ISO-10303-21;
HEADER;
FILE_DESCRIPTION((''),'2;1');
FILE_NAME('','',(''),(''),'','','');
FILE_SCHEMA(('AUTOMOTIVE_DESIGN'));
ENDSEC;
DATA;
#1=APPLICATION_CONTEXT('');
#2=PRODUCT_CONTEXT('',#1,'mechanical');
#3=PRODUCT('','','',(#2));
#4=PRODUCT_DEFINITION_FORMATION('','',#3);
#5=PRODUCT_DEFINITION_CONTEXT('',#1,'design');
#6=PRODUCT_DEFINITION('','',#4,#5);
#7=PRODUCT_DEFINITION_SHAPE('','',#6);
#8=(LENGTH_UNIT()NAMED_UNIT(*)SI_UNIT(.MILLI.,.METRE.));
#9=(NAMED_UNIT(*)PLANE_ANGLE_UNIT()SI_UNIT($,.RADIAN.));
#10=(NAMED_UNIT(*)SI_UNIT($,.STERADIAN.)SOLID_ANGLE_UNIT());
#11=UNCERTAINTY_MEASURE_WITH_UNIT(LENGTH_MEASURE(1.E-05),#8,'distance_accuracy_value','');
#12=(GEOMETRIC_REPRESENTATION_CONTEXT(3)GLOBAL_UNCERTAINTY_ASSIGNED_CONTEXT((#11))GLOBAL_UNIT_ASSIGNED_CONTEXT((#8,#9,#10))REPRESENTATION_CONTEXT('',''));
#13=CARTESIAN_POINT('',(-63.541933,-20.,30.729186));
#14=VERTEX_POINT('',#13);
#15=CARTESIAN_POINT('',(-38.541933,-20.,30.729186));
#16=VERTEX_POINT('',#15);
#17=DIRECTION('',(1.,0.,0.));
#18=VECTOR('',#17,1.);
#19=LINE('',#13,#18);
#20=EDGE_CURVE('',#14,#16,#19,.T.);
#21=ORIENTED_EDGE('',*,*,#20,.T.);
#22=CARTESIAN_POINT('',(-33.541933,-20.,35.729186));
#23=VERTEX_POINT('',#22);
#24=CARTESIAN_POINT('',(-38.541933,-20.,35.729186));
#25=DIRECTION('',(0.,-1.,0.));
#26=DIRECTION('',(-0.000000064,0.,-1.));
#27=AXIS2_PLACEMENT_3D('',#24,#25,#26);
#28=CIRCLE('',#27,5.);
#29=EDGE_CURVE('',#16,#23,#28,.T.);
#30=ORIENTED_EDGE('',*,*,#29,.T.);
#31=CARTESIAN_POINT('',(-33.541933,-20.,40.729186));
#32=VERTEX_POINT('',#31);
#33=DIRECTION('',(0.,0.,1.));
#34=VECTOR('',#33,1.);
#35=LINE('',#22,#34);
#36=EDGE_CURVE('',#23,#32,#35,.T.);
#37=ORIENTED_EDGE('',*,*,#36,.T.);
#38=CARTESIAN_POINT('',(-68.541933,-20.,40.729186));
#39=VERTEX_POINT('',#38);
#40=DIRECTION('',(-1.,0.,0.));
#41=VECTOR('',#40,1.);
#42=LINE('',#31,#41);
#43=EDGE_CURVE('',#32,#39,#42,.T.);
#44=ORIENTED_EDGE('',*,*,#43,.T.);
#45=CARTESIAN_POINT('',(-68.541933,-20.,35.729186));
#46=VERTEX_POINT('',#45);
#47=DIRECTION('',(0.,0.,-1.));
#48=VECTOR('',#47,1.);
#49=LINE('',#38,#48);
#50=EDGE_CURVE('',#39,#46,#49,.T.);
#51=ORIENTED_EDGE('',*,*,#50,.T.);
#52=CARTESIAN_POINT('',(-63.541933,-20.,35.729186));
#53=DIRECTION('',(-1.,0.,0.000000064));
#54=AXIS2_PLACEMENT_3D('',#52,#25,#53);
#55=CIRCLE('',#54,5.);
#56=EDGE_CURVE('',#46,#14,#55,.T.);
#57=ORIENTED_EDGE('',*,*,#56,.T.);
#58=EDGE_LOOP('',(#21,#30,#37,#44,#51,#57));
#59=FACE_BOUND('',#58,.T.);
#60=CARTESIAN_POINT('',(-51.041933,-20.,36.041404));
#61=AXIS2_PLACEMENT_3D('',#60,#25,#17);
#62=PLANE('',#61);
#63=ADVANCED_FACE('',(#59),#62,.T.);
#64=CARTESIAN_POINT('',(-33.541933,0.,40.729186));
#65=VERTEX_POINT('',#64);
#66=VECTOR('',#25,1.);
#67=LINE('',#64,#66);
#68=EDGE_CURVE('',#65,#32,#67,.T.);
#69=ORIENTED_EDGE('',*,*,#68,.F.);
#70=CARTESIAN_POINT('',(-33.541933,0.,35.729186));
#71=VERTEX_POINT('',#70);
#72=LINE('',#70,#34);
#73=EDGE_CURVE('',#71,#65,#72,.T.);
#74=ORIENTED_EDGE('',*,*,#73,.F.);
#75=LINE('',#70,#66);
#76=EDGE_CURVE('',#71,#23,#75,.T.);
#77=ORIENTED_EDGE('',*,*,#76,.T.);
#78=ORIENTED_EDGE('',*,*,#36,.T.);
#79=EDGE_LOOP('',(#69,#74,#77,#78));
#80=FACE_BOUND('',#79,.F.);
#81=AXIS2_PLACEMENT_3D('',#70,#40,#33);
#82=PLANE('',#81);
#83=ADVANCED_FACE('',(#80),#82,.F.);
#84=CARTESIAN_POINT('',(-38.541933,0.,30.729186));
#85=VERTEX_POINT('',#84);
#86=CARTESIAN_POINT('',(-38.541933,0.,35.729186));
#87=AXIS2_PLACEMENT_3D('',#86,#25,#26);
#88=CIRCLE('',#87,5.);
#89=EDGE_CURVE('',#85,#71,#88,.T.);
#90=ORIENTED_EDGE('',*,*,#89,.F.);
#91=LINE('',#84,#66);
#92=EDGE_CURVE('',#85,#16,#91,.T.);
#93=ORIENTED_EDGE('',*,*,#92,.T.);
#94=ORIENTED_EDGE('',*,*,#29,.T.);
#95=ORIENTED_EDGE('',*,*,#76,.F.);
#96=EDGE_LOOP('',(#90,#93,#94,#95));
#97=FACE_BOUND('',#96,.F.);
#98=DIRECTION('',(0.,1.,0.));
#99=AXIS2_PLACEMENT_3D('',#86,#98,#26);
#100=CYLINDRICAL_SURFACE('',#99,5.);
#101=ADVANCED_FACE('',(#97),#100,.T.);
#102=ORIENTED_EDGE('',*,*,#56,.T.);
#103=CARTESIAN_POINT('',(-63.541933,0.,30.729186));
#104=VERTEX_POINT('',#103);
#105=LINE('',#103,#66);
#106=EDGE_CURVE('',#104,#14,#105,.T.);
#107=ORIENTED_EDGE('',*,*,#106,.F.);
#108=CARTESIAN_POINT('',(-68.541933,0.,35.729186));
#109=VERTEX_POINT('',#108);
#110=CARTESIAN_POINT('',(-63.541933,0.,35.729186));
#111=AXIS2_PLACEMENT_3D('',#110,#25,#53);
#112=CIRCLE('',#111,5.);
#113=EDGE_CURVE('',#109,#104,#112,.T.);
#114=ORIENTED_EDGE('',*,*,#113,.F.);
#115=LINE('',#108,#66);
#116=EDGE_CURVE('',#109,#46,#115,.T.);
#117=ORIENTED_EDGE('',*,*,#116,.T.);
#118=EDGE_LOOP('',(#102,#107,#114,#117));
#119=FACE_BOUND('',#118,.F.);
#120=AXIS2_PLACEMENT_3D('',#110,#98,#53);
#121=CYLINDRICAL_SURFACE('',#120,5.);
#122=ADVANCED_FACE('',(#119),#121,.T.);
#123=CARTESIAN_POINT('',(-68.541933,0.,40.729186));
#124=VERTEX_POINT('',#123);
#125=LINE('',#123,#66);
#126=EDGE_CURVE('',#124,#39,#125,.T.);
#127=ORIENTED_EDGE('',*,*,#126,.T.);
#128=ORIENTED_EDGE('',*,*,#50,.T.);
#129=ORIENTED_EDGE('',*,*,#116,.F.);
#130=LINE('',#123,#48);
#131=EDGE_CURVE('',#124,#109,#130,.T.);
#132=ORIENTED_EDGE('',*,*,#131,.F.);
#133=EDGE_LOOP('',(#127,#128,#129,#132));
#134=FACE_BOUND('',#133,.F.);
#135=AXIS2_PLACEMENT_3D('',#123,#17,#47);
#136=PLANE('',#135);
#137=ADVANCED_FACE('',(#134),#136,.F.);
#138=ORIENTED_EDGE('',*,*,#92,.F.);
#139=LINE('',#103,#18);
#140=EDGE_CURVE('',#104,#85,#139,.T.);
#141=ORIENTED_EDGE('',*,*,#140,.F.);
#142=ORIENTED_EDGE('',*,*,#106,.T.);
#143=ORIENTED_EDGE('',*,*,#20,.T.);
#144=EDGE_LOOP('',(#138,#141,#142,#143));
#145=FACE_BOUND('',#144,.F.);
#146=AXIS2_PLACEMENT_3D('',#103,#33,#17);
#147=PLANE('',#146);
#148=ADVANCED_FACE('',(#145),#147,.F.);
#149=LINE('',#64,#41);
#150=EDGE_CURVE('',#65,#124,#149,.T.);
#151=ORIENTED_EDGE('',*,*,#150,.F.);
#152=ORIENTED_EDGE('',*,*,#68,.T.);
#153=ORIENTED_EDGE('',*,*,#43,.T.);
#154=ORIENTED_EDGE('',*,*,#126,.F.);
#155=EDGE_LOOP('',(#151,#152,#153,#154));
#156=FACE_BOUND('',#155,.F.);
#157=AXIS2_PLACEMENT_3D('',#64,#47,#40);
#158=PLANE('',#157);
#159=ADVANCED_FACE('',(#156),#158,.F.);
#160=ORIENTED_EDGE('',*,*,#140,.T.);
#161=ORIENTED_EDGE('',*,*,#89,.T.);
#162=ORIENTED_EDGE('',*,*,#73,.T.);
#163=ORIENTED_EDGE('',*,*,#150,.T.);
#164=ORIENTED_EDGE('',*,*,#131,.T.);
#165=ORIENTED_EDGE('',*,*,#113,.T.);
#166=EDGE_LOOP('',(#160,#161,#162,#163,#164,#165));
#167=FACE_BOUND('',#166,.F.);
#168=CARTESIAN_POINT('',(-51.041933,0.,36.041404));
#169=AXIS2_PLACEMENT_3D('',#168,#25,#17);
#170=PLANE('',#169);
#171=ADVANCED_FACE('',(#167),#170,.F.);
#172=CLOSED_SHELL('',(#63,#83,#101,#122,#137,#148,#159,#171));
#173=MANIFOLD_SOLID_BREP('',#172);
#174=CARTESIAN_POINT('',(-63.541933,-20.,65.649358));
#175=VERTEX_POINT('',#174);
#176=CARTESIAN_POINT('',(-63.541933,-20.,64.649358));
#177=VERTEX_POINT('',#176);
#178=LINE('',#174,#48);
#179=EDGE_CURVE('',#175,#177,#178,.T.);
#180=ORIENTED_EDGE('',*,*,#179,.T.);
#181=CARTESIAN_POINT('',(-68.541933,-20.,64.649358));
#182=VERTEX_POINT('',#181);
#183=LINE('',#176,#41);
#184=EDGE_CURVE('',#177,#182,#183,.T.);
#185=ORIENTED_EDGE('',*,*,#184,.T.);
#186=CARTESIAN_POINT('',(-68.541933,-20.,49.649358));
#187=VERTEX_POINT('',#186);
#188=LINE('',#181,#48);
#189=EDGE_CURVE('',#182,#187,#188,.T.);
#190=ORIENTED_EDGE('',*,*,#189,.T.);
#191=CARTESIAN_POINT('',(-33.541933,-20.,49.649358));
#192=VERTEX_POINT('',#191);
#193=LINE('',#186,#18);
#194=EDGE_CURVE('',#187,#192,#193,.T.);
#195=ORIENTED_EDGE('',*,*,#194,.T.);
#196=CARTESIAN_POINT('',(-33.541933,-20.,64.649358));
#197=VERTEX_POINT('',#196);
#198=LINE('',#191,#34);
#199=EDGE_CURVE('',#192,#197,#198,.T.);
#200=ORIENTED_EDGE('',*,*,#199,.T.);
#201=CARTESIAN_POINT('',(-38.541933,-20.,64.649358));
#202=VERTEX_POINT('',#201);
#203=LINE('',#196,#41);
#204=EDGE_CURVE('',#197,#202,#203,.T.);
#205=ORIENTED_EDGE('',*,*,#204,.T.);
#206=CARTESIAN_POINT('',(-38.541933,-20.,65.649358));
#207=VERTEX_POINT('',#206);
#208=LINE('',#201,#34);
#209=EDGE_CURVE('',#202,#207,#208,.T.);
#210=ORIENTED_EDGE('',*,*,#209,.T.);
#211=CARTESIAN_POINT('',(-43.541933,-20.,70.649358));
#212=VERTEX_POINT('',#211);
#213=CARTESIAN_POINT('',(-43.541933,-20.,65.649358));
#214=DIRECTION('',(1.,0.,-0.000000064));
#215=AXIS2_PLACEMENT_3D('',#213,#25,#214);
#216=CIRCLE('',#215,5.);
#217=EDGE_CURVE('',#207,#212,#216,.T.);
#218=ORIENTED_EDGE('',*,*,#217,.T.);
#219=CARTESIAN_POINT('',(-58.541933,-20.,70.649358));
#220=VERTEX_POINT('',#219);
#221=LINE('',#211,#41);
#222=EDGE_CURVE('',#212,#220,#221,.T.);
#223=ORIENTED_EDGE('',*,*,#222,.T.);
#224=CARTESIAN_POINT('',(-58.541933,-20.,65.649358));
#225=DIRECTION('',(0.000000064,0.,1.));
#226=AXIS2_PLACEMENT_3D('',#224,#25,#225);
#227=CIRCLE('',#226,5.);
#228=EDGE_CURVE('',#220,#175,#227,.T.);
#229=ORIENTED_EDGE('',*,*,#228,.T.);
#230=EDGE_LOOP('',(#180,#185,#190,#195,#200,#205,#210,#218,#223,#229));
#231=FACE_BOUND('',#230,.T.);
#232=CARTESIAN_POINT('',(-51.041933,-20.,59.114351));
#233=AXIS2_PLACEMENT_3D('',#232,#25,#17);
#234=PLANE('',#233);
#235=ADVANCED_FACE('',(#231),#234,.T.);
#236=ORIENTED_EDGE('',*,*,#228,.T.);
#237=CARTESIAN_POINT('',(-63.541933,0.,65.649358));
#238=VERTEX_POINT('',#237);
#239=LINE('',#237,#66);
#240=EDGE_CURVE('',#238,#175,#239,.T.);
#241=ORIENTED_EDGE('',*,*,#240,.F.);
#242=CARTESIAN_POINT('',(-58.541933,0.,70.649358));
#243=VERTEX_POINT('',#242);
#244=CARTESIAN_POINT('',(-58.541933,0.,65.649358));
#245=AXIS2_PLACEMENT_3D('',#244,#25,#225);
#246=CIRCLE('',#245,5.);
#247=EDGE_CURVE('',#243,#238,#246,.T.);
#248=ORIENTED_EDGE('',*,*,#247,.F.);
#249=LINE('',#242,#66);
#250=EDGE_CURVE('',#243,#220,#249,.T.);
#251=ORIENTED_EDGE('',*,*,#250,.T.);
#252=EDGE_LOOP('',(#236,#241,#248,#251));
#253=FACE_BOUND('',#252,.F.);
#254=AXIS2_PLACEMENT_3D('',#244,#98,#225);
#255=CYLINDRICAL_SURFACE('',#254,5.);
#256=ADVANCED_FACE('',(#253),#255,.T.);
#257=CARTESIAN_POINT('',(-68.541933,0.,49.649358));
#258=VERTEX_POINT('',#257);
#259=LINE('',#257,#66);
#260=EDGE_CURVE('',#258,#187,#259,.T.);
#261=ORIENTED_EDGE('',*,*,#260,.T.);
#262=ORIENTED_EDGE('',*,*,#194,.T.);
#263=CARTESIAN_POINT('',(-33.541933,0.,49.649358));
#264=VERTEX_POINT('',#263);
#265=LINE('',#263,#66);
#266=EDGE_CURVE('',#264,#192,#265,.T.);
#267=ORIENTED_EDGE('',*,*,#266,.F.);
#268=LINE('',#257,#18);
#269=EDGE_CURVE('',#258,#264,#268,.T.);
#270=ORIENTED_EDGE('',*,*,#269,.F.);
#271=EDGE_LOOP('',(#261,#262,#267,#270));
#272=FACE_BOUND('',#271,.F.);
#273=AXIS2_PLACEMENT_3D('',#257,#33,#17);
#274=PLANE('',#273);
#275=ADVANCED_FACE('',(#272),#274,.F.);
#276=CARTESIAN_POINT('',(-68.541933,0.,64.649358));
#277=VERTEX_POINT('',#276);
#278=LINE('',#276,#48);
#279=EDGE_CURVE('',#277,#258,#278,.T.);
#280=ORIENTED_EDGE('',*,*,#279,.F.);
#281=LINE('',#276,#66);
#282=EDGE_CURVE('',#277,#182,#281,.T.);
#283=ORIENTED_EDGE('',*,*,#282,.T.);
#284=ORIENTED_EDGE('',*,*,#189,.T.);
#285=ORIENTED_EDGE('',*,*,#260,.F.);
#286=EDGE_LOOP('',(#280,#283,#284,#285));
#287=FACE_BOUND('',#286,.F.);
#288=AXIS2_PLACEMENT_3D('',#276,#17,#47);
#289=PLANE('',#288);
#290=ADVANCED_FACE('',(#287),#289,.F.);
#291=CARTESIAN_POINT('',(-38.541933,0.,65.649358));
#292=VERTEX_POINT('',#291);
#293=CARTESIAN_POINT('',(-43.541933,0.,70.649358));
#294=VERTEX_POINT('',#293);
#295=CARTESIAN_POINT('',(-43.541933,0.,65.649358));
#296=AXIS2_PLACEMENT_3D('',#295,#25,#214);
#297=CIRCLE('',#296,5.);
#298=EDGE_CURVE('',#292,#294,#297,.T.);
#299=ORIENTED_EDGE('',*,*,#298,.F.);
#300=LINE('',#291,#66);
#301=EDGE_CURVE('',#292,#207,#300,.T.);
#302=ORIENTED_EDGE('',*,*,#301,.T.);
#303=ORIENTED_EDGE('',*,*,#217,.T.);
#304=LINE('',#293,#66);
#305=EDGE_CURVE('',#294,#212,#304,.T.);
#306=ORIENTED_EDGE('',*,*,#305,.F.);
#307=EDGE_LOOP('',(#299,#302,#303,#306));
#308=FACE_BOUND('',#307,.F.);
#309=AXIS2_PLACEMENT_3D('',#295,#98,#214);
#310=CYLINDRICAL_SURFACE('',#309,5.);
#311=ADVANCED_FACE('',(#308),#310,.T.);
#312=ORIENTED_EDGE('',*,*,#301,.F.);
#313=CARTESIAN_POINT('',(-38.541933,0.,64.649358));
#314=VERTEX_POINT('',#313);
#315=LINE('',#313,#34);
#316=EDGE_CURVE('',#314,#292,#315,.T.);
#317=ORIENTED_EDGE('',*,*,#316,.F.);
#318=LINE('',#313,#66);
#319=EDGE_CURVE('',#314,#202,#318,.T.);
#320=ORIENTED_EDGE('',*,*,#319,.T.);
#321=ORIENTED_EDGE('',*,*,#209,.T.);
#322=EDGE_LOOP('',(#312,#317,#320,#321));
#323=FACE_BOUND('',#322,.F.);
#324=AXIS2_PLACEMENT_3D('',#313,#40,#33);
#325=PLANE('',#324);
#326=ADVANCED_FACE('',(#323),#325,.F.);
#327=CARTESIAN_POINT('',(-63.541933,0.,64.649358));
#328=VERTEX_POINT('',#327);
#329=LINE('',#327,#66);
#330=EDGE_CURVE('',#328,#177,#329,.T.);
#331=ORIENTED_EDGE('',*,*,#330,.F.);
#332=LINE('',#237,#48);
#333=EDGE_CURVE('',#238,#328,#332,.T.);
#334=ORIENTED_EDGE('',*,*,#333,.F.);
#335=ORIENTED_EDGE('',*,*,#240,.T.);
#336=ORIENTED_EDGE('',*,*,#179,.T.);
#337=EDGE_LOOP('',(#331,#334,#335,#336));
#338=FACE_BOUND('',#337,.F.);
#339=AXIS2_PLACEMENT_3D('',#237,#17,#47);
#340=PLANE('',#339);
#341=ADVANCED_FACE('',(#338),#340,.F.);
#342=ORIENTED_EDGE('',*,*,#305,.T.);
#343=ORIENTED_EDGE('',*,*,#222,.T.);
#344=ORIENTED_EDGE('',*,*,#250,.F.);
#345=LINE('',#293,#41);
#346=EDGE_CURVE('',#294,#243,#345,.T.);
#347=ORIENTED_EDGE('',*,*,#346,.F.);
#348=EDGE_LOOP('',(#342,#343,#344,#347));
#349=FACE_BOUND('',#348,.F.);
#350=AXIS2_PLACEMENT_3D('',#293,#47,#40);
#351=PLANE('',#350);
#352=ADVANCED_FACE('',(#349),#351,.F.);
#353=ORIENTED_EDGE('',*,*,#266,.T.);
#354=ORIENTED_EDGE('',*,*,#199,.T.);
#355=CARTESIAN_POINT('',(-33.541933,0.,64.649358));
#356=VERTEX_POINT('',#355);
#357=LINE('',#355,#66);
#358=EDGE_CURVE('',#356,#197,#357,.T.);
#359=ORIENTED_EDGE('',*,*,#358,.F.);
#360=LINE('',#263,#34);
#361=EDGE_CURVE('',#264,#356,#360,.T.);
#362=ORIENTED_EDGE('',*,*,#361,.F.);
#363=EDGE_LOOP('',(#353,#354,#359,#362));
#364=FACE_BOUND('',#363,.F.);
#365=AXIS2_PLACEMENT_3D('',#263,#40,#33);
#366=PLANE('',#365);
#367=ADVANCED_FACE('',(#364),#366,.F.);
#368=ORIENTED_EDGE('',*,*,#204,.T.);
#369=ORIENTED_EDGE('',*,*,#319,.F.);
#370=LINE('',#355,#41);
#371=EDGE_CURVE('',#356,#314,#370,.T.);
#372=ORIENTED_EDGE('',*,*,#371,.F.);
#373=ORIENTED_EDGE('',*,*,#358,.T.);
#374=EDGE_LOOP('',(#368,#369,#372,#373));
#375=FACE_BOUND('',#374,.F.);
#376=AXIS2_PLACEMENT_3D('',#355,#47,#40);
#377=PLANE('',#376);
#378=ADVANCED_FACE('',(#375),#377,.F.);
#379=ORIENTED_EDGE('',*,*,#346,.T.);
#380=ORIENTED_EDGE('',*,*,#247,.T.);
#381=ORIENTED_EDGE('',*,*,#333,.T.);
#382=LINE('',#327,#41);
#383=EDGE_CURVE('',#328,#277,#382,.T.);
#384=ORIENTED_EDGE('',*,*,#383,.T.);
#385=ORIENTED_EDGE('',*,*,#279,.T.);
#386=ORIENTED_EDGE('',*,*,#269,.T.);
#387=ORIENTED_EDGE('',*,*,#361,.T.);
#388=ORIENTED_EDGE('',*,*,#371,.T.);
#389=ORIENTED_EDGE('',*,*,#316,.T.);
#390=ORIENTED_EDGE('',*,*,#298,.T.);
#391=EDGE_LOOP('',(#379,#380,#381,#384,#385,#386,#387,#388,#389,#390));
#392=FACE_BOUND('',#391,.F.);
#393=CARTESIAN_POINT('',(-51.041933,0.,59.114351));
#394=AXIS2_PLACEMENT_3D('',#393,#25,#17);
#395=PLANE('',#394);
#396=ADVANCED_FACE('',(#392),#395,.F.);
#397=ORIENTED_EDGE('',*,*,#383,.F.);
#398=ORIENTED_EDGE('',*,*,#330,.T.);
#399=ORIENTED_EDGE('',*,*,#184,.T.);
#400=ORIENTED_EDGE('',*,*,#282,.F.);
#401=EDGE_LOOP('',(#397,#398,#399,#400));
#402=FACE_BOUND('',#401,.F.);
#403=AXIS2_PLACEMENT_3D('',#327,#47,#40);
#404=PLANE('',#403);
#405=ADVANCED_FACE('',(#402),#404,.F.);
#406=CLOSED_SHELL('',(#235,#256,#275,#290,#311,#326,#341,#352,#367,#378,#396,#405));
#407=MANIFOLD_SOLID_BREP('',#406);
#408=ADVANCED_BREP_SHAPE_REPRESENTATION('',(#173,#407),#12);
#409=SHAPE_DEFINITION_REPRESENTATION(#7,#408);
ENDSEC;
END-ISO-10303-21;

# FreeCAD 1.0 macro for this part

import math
import FreeCAD as App
import Part
import Sketcher
Q = App.Units.Quantity

doc = App.newDocument("Part")
body = doc.addObject("PartDesign::Body", "Body")
body.AllowCompound = True

sketch1 = body.newObject("Sketcher::SketchObject", "Sketch")
sketch1.AttachmentSupport = (doc.getObject("XZ_Plane"), [""])
sketch1.MapMode = "FlatFace"
sketch1.addGeometry([
    Part.LineSegment(App.Vector(-33.541933, 40.729186, 0), App.Vector(-68.541933, 40.729186, 0)),
    Part.LineSegment(App.Vector(-68.541933, 40.729186, 0), App.Vector(-68.541933, 35.729186, 0)),
    Part.ArcOfCircle(Part.Circle(App.Vector(-63.541933, 35.729186, 0), App.Vector(0, 0, 1), 5), math.radians(179.999996), math.radians(270.000004)),
    Part.LineSegment(App.Vector(-63.541933, 30.729186, 0), App.Vector(-38.541933, 30.729186, 0)),
    Part.ArcOfCircle(Part.Circle(App.Vector(-38.541933, 35.729186, 0), App.Vector(0, 0, 1), 5), math.radians(-90.000004), math.radians(0.000004)),
    Part.LineSegment(App.Vector(-33.541933, 35.729186, 0), App.Vector(-33.541933, 40.729186, 0)),
    Part.LineSegment(App.Vector(-68.541933, 64.649358, 0), App.Vector(-68.541933, 49.649358, 0)),
    Part.LineSegment(App.Vector(-68.541933, 49.649358, 0), App.Vector(-33.541933, 49.649358, 0)),
    Part.LineSegment(App.Vector(-33.541933, 49.649358, 0), App.Vector(-33.541933, 64.649358, 0)),
    Part.LineSegment(App.Vector(-33.541933, 64.649358, 0), App.Vector(-38.541933, 64.649358, 0)),
    Part.LineSegment(App.Vector(-38.541933, 64.649358, 0), App.Vector(-38.541933, 65.649358, 0)),
    Part.ArcOfCircle(Part.Circle(App.Vector(-43.541933, 65.649358, 0), App.Vector(0, 0, 1), 5), math.radians(-0.000004), math.radians(90.000004)),
    Part.LineSegment(App.Vector(-43.541933, 70.649358, 0), App.Vector(-58.541933, 70.649358, 0)),
    Part.ArcOfCircle(Part.Circle(App.Vector(-58.541933, 65.649358, 0), App.Vector(0, 0, 1), 5), math.radians(89.999996), math.radians(180.000004)),
    Part.LineSegment(App.Vector(-63.541933, 65.649358, 0), App.Vector(-63.541933, 64.649358, 0)),
    Part.LineSegment(App.Vector(-63.541933, 64.649358, 0), App.Vector(-68.541933, 64.649358, 0)),
], False)
sketch1.addConstraint([
    Sketcher.Constraint("Coincident", 0, 2, 1, 1),
    Sketcher.Constraint("Tangent", 1, 2, 2, 1),
    Sketcher.Constraint("Tangent", 2, 2, 3, 1),
    Sketcher.Constraint("Tangent", 3, 2, 4, 1),
    Sketcher.Constraint("Tangent", 4, 2, 5, 1),
    Sketcher.Constraint("Coincident", 5, 2, 0, 1),
    Sketcher.Constraint("Coincident", 6, 2, 7, 1),
    Sketcher.Constraint("Coincident", 7, 2, 8, 1),
    Sketcher.Constraint("Coincident", 8, 2, 9, 1),
    Sketcher.Constraint("Coincident", 9, 2, 10, 1),
    Sketcher.Constraint("Tangent", 10, 2, 11, 1),
    Sketcher.Constraint("Tangent", 11, 2, 12, 1),
    Sketcher.Constraint("Tangent", 12, 2, 13, 1),
    Sketcher.Constraint("Tangent", 13, 2, 14, 1),
    Sketcher.Constraint("Coincident", 14, 2, 15, 1),
    Sketcher.Constraint("Coincident", 15, 2, 6, 1),
    Sketcher.Constraint("Horizontal", 0),
    Sketcher.Constraint("Vertical", 1),
    Sketcher.Constraint("Horizontal", 3),
    Sketcher.Constraint("Vertical", 5),
    Sketcher.Constraint("Vertical", 6),
    Sketcher.Constraint("Horizontal", 7),
    Sketcher.Constraint("Vertical", 8),
    Sketcher.Constraint("Horizontal", 9),
    Sketcher.Constraint("Vertical", 10),
    Sketcher.Constraint("Horizontal", 12),
    Sketcher.Constraint("Vertical", 14),
    Sketcher.Constraint("Horizontal", 15),
    Sketcher.Constraint("Equal", 2, 4),
    Sketcher.Constraint("Equal", 4, 11),
    Sketcher.Constraint("Equal", 11, 13),
    Sketcher.Constraint("Horizontal", 9, 2, 14, 2),
    Sketcher.Constraint("Vertical", 1, 2, 6, 2),
    Sketcher.Constraint("Vertical", 5, 2, 7, 2),
    Sketcher.Constraint("Vertical", 3, 2, 9, 2),
    Sketcher.Constraint("Vertical", 2, 2, 13, 2),
    Sketcher.Constraint("Equal", 15, 1),
    Sketcher.Constraint("Equal", 12, 6),
    Sketcher.Constraint("Radius", 2, Q("5 mm")),
    Sketcher.Constraint("DistanceX", 0, 2, 0, 1, Q("35 mm")),
    Sketcher.Constraint("DistanceY", 10, 1, 10, 2, Q("1 mm")),
    Sketcher.Constraint("DistanceY", -1, 1, 11, 3, Q("65.649358 mm")),
    Sketcher.Constraint("DistanceY", 2, 2, 6, 2, Q("18.920172 mm")),
    Sketcher.Constraint("DistanceX", 2, 3, -1, 1, Q("63.541933 mm")),
])
pad1 = body.newObject("PartDesign::Pad", "Pad")
pad1.Profile = sketch1
pad1.Length = 20

doc.recompute()
